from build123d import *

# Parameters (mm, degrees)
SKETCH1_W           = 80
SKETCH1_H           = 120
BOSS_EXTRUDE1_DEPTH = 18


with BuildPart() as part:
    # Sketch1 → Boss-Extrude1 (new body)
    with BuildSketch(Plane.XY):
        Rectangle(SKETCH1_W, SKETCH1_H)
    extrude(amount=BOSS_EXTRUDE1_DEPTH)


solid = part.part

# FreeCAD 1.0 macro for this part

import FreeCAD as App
import Part
import Sketcher

V = App.Vector

doc = App.newDocument("Part")
params = doc.addObject("Spreadsheet::Sheet", "Params")
for row, (alias, value) in enumerate([
    ("sketch1_width", "80 mm"),
    ("sketch1_height", "120 mm"),
    ("pad1_length", "18 mm"),
], start=1):
    params.set(f"A{row}", alias)
    params.set(f"B{row}", "=" + value)
    params.setAlias(f"B{row}", alias)

body = doc.addObject("PartDesign::Body", "Body")

# Sketch on XY plane
sketch1 = body.newObject("Sketcher::SketchObject", "Sketch")
sketch1.AttachmentSupport = (doc.getObject("XY_Plane"), [""])
sketch1.MapMode = "FlatFace"
sketch1.addGeometry([
    Part.LineSegment(V(-40, 60, 0), V(-40, -60, 0)),
    Part.LineSegment(V(-40, -60, 0), V(40, -60, 0)),
    Part.LineSegment(V(40, -60, 0), V(40, 60, 0)),
    Part.LineSegment(V(40, 60, 0), V(-40, 60, 0)),
], False)
sketch1.addConstraint([
    Sketcher.Constraint("Coincident", 0, 2, 1, 1),
    Sketcher.Constraint("Coincident", 1, 2, 2, 1),
    Sketcher.Constraint("Coincident", 2, 2, 3, 1),
    Sketcher.Constraint("Coincident", 3, 2, 0, 1),
    Sketcher.Constraint("Vertical", 0),
    Sketcher.Constraint("Horizontal", 1),
    Sketcher.Constraint("Vertical", 2),
    Sketcher.Constraint("Horizontal", 3),
    Sketcher.Constraint("Symmetric", 0, 2, 2, 2, -1, 1),
    Sketcher.Constraint("DistanceX", 1, 1, 1, 2, 80.0),
    Sketcher.Constraint("DistanceY", 0, 2, 0, 1, 120.0),
])
sketch1.setExpression("Constraints[9]", "Params.sketch1_width")
sketch1.setExpression("Constraints[10]", "Params.sketch1_height")
pad1 = body.newObject("PartDesign::Pad", "Pad")
pad1.Profile = sketch1
pad1.setExpression("Length", "Params.pad1_length")

doc.recompute()
